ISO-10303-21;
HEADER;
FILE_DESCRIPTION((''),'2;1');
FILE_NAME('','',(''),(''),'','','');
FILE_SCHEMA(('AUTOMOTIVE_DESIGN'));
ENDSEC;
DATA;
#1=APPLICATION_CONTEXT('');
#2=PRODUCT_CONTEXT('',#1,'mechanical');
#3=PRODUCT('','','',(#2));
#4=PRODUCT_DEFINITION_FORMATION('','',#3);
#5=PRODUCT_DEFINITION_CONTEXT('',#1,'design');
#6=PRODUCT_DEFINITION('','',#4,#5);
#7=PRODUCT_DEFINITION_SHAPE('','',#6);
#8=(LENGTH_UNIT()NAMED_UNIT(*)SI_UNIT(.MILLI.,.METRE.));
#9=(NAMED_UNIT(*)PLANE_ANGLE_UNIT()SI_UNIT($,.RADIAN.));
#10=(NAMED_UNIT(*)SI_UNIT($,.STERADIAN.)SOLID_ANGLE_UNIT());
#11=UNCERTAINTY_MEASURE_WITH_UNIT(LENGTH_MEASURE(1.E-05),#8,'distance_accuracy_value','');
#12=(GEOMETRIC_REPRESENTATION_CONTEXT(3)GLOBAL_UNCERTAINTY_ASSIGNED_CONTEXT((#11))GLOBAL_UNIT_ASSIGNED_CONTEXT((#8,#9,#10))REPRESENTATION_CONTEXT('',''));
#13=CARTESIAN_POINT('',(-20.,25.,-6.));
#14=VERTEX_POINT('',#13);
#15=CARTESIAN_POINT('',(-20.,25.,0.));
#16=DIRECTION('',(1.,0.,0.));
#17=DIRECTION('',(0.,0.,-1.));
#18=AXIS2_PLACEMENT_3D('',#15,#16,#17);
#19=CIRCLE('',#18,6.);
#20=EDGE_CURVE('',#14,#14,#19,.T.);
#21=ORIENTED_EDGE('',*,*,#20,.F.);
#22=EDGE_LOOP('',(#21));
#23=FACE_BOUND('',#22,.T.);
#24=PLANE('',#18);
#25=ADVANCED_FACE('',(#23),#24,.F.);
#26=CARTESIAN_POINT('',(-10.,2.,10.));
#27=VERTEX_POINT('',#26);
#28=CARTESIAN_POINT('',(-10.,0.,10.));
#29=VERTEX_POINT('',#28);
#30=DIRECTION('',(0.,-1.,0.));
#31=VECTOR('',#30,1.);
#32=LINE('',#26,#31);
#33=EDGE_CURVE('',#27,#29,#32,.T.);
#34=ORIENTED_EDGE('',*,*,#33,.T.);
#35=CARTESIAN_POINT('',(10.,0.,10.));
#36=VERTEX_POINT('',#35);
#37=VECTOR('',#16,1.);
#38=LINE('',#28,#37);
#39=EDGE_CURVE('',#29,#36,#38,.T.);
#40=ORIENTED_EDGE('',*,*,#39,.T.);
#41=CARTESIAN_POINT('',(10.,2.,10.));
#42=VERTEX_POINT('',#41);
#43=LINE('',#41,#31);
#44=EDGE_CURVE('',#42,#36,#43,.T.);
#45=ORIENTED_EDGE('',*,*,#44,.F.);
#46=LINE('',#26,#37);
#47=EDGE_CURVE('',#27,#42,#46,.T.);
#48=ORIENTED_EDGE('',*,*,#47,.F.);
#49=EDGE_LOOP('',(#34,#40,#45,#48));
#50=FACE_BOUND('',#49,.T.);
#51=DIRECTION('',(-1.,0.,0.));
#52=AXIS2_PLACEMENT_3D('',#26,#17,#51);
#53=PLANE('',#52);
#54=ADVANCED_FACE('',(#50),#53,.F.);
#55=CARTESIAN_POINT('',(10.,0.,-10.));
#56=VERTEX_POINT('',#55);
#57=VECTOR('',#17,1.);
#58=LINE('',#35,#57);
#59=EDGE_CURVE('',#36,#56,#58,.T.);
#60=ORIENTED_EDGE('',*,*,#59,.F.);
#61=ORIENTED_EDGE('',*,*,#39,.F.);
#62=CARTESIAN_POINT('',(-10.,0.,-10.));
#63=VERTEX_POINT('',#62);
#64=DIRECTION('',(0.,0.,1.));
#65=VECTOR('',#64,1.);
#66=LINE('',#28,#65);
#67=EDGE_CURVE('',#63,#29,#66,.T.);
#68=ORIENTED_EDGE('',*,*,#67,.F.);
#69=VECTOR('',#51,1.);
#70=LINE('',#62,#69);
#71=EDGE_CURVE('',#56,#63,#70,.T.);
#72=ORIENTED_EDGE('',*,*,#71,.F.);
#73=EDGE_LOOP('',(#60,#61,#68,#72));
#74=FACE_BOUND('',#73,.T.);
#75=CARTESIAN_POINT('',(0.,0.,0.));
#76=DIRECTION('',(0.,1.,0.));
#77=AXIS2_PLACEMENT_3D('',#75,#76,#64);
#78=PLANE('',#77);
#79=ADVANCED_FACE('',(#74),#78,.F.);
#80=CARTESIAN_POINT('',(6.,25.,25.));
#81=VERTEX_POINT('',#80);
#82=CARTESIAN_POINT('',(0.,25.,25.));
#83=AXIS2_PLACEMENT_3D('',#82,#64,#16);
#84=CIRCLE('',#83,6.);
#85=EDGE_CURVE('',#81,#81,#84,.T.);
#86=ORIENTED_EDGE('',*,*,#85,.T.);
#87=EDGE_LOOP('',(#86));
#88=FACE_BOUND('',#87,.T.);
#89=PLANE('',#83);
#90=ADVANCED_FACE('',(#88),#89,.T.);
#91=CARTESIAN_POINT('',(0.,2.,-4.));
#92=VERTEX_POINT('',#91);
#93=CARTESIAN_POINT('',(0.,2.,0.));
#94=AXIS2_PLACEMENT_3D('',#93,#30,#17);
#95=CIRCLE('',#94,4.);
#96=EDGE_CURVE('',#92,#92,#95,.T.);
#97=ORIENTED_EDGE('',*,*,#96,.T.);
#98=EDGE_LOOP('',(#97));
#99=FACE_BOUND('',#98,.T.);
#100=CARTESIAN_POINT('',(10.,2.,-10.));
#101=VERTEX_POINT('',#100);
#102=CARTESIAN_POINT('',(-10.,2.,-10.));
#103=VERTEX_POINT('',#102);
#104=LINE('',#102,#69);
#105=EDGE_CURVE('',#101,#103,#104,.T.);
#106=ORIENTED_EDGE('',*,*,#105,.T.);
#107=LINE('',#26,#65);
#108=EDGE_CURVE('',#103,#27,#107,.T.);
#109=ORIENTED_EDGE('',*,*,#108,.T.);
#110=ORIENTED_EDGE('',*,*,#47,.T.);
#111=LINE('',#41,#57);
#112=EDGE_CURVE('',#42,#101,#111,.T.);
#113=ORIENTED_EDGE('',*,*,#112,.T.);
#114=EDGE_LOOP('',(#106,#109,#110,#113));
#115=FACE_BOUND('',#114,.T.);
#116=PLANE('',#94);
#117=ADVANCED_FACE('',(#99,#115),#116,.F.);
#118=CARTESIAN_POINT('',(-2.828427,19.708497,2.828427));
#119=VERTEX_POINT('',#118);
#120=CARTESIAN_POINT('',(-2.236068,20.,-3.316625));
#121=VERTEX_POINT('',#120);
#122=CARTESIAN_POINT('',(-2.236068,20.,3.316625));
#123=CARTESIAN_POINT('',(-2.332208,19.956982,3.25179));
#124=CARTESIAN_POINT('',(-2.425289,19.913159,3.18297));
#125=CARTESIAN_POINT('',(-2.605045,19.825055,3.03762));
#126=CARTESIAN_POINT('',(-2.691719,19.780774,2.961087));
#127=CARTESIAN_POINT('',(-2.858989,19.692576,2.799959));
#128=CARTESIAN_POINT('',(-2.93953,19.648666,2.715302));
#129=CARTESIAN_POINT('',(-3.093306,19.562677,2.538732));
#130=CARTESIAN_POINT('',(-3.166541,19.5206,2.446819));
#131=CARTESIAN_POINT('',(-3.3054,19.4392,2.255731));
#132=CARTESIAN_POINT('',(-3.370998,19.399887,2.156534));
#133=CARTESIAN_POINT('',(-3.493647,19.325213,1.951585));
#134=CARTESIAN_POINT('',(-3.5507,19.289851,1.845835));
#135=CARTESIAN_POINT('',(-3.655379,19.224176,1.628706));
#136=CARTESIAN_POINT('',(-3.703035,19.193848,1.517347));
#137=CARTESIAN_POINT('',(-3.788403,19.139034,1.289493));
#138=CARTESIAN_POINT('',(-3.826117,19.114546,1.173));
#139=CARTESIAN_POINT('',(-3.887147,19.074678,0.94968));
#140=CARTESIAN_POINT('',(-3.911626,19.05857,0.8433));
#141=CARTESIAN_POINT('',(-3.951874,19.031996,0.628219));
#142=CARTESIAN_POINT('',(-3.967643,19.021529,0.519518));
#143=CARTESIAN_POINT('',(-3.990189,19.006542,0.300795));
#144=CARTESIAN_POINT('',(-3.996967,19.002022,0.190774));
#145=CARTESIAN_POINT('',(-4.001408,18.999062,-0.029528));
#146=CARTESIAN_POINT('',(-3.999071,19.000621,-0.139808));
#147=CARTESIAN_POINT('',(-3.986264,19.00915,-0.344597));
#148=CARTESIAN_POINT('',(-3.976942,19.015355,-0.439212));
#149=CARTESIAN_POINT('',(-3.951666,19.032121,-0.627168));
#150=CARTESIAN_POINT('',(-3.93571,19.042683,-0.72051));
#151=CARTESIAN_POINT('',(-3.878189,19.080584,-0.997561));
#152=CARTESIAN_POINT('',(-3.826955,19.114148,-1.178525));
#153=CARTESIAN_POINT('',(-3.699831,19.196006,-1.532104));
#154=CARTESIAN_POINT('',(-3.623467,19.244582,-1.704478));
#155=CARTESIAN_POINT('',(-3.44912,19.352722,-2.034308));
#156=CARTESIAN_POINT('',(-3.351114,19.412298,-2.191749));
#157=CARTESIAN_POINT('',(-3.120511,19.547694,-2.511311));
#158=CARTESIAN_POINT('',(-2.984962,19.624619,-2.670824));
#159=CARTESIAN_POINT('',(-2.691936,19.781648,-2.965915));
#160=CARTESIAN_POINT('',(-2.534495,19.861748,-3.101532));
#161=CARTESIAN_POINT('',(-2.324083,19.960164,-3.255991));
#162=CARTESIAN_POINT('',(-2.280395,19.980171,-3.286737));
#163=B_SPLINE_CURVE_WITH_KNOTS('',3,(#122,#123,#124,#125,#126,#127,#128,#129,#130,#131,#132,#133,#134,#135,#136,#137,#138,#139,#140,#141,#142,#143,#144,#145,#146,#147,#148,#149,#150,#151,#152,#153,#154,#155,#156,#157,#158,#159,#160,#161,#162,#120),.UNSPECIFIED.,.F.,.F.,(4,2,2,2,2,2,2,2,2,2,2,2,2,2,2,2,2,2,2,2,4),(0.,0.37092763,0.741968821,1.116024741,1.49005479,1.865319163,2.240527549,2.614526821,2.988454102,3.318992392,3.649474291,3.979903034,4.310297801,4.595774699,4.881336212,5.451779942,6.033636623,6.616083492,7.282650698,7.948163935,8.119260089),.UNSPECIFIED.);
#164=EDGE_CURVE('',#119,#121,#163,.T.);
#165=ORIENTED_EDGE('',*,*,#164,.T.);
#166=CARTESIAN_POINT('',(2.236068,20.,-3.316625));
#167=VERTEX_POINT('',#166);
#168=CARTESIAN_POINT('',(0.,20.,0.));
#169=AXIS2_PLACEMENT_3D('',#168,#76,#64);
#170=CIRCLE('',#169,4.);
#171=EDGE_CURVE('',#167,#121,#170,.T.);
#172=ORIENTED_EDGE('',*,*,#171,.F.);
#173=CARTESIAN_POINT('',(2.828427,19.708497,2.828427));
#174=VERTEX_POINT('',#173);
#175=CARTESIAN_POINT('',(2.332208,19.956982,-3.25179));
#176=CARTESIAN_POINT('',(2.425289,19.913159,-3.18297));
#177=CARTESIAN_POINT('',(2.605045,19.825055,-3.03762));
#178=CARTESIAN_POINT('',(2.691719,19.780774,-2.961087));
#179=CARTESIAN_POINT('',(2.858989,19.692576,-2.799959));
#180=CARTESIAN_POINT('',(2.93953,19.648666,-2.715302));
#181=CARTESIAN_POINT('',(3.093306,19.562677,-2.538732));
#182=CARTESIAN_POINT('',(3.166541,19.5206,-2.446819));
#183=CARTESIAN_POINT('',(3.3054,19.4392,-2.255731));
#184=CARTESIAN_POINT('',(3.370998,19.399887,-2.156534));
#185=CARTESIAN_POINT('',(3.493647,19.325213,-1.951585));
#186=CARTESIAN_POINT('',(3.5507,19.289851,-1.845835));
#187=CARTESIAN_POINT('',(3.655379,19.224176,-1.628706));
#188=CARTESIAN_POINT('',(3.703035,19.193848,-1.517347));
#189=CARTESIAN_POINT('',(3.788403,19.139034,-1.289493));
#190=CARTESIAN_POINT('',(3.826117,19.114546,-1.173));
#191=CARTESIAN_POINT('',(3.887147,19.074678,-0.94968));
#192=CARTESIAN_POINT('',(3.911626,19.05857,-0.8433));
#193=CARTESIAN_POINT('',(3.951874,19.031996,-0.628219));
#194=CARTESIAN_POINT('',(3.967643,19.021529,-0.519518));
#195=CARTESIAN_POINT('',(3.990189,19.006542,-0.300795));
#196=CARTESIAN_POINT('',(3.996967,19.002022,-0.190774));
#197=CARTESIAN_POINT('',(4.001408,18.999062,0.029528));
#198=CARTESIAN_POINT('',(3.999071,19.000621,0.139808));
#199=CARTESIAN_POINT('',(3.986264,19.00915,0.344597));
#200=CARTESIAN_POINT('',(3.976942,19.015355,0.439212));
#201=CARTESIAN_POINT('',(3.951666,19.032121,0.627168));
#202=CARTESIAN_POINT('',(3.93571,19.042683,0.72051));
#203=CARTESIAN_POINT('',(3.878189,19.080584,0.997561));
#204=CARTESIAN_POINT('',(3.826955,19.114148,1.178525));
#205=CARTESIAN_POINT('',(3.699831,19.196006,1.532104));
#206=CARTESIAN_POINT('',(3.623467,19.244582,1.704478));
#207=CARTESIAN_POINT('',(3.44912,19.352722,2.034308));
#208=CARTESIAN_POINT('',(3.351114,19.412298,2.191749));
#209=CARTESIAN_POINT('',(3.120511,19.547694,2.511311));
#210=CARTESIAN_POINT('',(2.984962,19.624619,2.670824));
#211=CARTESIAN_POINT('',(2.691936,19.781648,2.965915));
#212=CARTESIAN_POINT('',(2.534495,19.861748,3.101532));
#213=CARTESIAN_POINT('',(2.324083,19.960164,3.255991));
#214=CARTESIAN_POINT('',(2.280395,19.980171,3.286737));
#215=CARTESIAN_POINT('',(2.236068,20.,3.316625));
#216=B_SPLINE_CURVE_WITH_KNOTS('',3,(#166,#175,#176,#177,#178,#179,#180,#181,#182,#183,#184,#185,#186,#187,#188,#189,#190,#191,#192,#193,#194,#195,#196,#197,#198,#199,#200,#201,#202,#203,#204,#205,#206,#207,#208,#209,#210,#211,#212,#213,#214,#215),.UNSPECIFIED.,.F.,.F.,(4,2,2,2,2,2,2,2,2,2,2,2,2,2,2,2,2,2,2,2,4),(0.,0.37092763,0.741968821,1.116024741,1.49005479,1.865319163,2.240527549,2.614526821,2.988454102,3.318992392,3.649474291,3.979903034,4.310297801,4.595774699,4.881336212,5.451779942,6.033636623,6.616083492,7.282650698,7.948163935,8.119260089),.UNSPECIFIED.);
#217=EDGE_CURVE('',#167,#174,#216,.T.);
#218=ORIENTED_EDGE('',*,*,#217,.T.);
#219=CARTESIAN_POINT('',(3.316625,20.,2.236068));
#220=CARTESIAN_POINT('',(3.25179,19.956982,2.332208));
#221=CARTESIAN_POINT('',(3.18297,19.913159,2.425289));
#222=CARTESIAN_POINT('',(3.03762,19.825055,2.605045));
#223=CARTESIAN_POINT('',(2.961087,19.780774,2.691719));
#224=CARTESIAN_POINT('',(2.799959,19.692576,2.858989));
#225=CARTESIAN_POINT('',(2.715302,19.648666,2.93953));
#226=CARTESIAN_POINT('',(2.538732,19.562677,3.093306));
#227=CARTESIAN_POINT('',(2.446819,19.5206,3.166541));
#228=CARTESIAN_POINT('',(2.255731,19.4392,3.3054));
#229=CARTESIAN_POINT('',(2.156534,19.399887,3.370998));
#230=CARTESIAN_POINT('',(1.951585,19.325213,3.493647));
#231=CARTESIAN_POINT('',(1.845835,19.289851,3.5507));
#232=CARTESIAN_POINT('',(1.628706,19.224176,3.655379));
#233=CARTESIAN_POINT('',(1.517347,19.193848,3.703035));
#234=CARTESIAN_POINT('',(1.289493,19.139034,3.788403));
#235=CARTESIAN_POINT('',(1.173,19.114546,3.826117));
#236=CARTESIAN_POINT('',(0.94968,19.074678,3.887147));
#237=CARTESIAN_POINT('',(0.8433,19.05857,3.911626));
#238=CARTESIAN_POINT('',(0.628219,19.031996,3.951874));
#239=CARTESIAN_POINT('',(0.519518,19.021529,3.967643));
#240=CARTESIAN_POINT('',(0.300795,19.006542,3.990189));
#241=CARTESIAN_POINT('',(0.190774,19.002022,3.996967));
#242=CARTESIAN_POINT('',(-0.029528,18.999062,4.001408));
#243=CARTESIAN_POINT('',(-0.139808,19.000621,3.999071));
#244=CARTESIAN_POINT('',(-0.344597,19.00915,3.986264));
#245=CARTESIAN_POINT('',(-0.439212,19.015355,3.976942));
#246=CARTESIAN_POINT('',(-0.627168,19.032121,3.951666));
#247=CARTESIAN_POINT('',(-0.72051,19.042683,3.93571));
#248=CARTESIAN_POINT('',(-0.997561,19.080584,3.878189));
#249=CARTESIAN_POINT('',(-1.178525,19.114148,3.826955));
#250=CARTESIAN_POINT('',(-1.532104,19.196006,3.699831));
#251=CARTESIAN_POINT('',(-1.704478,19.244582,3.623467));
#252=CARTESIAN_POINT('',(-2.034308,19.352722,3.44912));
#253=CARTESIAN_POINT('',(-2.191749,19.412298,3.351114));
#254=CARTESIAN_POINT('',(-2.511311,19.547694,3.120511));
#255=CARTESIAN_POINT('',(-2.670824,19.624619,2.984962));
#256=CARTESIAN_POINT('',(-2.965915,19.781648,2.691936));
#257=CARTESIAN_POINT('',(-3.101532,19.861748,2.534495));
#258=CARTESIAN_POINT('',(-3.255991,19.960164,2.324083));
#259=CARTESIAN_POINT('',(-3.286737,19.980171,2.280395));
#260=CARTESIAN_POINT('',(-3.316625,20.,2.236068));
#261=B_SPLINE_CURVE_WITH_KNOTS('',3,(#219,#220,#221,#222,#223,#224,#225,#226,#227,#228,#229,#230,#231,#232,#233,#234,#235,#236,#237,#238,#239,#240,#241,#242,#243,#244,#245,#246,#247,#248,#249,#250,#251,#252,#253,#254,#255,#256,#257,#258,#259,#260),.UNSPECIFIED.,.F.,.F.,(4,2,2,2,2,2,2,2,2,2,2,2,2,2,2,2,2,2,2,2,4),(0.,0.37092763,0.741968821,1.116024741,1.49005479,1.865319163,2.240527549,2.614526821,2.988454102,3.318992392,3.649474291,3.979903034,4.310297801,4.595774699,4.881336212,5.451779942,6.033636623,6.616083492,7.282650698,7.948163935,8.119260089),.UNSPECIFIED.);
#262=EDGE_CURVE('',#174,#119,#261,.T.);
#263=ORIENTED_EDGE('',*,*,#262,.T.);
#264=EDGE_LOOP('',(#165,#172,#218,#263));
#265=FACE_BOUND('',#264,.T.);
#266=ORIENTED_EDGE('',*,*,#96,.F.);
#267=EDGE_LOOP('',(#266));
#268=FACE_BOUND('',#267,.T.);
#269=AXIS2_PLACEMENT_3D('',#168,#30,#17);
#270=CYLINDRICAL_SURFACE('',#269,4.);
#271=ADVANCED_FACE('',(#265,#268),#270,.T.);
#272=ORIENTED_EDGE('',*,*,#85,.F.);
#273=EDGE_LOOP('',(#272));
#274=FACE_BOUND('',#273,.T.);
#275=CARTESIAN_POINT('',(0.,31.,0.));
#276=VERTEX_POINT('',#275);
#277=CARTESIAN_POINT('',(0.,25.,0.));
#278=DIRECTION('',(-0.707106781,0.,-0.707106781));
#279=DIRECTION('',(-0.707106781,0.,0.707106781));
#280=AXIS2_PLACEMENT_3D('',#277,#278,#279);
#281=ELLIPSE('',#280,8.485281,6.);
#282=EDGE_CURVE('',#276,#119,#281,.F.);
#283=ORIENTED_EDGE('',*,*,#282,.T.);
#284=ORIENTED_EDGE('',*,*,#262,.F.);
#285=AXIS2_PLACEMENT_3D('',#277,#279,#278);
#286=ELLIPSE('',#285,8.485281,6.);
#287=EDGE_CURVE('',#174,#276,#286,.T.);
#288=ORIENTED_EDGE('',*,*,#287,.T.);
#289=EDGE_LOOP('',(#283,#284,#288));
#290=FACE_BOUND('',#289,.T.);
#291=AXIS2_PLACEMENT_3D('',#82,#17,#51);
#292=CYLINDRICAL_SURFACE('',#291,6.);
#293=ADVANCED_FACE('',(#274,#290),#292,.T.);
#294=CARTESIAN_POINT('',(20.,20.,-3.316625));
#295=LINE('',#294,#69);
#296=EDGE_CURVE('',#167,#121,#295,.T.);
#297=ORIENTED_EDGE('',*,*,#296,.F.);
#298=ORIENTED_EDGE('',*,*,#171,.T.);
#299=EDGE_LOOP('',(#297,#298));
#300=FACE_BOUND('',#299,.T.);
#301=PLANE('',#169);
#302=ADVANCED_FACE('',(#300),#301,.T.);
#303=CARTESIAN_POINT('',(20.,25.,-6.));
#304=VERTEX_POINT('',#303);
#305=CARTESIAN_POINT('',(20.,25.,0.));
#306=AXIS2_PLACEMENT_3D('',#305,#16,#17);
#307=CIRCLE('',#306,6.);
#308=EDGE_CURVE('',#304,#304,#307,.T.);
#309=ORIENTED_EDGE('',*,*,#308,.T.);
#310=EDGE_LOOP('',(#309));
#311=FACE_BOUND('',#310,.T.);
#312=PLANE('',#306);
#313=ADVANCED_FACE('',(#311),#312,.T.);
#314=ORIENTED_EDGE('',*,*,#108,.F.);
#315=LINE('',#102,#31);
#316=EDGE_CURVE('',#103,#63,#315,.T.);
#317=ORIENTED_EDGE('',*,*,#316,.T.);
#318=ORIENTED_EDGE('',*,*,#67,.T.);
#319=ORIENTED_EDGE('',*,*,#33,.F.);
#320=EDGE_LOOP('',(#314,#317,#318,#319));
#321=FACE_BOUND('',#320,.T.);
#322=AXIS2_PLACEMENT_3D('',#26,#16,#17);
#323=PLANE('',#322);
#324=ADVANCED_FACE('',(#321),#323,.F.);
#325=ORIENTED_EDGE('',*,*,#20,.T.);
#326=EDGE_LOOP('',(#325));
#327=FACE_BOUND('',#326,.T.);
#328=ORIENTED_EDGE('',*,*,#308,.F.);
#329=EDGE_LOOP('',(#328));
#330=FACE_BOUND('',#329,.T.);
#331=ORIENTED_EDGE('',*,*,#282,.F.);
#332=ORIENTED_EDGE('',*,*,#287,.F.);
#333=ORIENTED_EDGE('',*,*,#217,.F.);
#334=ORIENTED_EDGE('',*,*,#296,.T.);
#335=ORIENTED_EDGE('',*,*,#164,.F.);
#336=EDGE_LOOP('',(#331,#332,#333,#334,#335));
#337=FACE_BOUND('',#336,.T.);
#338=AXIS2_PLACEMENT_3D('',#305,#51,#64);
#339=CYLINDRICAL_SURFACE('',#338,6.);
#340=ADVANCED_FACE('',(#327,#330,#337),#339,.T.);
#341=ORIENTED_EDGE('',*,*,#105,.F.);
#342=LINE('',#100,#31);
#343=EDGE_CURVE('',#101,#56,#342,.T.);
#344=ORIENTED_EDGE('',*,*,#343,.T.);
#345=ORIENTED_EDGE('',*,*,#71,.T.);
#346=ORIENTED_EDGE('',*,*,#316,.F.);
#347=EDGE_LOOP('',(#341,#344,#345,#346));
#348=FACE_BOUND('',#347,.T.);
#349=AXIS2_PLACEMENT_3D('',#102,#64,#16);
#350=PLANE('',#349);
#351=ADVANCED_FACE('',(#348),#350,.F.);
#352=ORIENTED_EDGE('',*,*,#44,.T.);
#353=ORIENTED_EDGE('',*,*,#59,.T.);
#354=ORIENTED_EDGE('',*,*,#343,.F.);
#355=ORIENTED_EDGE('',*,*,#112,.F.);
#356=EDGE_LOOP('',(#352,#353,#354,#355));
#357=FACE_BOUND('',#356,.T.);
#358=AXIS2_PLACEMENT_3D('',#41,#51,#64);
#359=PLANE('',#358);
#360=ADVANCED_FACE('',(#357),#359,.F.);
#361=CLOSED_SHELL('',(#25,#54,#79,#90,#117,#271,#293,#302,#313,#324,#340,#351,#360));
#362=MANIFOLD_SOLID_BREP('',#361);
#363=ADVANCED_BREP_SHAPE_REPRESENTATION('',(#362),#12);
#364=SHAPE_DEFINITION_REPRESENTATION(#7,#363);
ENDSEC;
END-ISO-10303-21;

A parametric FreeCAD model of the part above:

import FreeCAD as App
import Part
import Sketcher
from FreeCAD import Vector
Q = App.Units.Quantity

doc = App.newDocument("Part")
body = doc.addObject("PartDesign::Body", "Body")

sketch1 = doc.addObject("Sketcher::SketchObject", "Sketch")
body.addObject(sketch1)
sketch1.AttachmentSupport = (doc.YZ_Plane, [""])
sketch1.MapMode = "FlatFace"
sketch1.AttachmentOffset = App.Placement(Vector(0, 0, -20), App.Rotation())
sketch1.addGeometry(Part.Circle(Vector(25, 0, 0), Vector(0, 0, 1), 6), False)
sketch1.addConstraint([
    Sketcher.Constraint("PointOnObject", 0, 3, -1),
    Sketcher.Constraint("Diameter", 0, Q("12 mm")),
    Sketcher.Constraint("DistanceX", -1, 1, 0, 3, Q("25 mm")),
])
pad1 = doc.addObject("PartDesign::Pad", "Pad")
body.addObject(pad1)
pad1.Profile = sketch1
pad1.Length = 40

sketch2 = doc.addObject("Sketcher::SketchObject", "Sketch001")
body.addObject(sketch2)
sketch2.AttachmentSupport = (doc.XY_Plane, [""])
sketch2.MapMode = "FlatFace"
sketch2.addGeometry(Part.Circle(Vector(0, 25, 0), Vector(0, 0, 1), 6), False)
sketch2.addConstraint([
    Sketcher.Constraint("PointOnObject", 0, 3, -2),
    Sketcher.Constraint("Diameter", 0, Q("12 mm")),
    Sketcher.Constraint("DistanceY", -1, 1, 0, 3, Q("25 mm")),
])
pad2 = doc.addObject("PartDesign::Pad", "Pad001")
body.addObject(pad2)
pad2.Profile = sketch2
pad2.Length = 25

sketch3 = doc.addObject("Sketcher::SketchObject", "Sketch002")
body.addObject(sketch3)
sketch3.AttachmentSupport = (doc.XZ_Plane, [""])
sketch3.MapMode = "FlatFace"
sketch3.addGeometry(Part.Circle(Vector(0, 0, 0), Vector(0, 0, 1), 4), False)
sketch3.addConstraint([
    Sketcher.Constraint("Coincident", 0, 3, -1, 1),
    Sketcher.Constraint("Diameter", 0, Q("8 mm")),
])
pad3 = doc.addObject("PartDesign::Pad", "Pad002")
body.addObject(pad3)
pad3.Profile = sketch3
pad3.Length = 20
pad3.Reversed = True

sketch4 = doc.addObject("Sketcher::SketchObject", "Sketch003")
body.addObject(sketch4)
sketch4.AttachmentSupport = (doc.XZ_Plane, [""])
sketch4.MapMode = "FlatFace"
sketch4.addGeometry([
    Part.LineSegment(Vector(-10, -10, 0), Vector(-10, 10, 0)),
    Part.LineSegment(Vector(-10, 10, 0), Vector(10, 10, 0)),
    Part.LineSegment(Vector(10, 10, 0), Vector(10, -10, 0)),
    Part.LineSegment(Vector(10, -10, 0), Vector(-10, -10, 0)),
], False)
sketch4.addConstraint([
    Sketcher.Constraint("Coincident", 0, 2, 1, 1),
    Sketcher.Constraint("Coincident", 1, 2, 2, 1),
    Sketcher.Constraint("Coincident", 2, 2, 3, 1),
    Sketcher.Constraint("Coincident", 3, 2, 0, 1),
    Sketcher.Constraint("Vertical", 0),
    Sketcher.Constraint("Horizontal", 1),
    Sketcher.Constraint("Vertical", 2),
    Sketcher.Constraint("Horizontal", 3),
    Sketcher.Constraint("Symmetric", 0, 2, 2, 2, -1, 1),
    Sketcher.Constraint("Equal", 3, 0),
    Sketcher.Constraint("DistanceX", 1, 1, 1, 2, Q("20 mm")),
])
pad4 = doc.addObject("PartDesign::Pad", "Pad003")
body.addObject(pad4)
pad4.Profile = sketch4
pad4.Length = 2
pad4.Reversed = True

doc.recompute()
